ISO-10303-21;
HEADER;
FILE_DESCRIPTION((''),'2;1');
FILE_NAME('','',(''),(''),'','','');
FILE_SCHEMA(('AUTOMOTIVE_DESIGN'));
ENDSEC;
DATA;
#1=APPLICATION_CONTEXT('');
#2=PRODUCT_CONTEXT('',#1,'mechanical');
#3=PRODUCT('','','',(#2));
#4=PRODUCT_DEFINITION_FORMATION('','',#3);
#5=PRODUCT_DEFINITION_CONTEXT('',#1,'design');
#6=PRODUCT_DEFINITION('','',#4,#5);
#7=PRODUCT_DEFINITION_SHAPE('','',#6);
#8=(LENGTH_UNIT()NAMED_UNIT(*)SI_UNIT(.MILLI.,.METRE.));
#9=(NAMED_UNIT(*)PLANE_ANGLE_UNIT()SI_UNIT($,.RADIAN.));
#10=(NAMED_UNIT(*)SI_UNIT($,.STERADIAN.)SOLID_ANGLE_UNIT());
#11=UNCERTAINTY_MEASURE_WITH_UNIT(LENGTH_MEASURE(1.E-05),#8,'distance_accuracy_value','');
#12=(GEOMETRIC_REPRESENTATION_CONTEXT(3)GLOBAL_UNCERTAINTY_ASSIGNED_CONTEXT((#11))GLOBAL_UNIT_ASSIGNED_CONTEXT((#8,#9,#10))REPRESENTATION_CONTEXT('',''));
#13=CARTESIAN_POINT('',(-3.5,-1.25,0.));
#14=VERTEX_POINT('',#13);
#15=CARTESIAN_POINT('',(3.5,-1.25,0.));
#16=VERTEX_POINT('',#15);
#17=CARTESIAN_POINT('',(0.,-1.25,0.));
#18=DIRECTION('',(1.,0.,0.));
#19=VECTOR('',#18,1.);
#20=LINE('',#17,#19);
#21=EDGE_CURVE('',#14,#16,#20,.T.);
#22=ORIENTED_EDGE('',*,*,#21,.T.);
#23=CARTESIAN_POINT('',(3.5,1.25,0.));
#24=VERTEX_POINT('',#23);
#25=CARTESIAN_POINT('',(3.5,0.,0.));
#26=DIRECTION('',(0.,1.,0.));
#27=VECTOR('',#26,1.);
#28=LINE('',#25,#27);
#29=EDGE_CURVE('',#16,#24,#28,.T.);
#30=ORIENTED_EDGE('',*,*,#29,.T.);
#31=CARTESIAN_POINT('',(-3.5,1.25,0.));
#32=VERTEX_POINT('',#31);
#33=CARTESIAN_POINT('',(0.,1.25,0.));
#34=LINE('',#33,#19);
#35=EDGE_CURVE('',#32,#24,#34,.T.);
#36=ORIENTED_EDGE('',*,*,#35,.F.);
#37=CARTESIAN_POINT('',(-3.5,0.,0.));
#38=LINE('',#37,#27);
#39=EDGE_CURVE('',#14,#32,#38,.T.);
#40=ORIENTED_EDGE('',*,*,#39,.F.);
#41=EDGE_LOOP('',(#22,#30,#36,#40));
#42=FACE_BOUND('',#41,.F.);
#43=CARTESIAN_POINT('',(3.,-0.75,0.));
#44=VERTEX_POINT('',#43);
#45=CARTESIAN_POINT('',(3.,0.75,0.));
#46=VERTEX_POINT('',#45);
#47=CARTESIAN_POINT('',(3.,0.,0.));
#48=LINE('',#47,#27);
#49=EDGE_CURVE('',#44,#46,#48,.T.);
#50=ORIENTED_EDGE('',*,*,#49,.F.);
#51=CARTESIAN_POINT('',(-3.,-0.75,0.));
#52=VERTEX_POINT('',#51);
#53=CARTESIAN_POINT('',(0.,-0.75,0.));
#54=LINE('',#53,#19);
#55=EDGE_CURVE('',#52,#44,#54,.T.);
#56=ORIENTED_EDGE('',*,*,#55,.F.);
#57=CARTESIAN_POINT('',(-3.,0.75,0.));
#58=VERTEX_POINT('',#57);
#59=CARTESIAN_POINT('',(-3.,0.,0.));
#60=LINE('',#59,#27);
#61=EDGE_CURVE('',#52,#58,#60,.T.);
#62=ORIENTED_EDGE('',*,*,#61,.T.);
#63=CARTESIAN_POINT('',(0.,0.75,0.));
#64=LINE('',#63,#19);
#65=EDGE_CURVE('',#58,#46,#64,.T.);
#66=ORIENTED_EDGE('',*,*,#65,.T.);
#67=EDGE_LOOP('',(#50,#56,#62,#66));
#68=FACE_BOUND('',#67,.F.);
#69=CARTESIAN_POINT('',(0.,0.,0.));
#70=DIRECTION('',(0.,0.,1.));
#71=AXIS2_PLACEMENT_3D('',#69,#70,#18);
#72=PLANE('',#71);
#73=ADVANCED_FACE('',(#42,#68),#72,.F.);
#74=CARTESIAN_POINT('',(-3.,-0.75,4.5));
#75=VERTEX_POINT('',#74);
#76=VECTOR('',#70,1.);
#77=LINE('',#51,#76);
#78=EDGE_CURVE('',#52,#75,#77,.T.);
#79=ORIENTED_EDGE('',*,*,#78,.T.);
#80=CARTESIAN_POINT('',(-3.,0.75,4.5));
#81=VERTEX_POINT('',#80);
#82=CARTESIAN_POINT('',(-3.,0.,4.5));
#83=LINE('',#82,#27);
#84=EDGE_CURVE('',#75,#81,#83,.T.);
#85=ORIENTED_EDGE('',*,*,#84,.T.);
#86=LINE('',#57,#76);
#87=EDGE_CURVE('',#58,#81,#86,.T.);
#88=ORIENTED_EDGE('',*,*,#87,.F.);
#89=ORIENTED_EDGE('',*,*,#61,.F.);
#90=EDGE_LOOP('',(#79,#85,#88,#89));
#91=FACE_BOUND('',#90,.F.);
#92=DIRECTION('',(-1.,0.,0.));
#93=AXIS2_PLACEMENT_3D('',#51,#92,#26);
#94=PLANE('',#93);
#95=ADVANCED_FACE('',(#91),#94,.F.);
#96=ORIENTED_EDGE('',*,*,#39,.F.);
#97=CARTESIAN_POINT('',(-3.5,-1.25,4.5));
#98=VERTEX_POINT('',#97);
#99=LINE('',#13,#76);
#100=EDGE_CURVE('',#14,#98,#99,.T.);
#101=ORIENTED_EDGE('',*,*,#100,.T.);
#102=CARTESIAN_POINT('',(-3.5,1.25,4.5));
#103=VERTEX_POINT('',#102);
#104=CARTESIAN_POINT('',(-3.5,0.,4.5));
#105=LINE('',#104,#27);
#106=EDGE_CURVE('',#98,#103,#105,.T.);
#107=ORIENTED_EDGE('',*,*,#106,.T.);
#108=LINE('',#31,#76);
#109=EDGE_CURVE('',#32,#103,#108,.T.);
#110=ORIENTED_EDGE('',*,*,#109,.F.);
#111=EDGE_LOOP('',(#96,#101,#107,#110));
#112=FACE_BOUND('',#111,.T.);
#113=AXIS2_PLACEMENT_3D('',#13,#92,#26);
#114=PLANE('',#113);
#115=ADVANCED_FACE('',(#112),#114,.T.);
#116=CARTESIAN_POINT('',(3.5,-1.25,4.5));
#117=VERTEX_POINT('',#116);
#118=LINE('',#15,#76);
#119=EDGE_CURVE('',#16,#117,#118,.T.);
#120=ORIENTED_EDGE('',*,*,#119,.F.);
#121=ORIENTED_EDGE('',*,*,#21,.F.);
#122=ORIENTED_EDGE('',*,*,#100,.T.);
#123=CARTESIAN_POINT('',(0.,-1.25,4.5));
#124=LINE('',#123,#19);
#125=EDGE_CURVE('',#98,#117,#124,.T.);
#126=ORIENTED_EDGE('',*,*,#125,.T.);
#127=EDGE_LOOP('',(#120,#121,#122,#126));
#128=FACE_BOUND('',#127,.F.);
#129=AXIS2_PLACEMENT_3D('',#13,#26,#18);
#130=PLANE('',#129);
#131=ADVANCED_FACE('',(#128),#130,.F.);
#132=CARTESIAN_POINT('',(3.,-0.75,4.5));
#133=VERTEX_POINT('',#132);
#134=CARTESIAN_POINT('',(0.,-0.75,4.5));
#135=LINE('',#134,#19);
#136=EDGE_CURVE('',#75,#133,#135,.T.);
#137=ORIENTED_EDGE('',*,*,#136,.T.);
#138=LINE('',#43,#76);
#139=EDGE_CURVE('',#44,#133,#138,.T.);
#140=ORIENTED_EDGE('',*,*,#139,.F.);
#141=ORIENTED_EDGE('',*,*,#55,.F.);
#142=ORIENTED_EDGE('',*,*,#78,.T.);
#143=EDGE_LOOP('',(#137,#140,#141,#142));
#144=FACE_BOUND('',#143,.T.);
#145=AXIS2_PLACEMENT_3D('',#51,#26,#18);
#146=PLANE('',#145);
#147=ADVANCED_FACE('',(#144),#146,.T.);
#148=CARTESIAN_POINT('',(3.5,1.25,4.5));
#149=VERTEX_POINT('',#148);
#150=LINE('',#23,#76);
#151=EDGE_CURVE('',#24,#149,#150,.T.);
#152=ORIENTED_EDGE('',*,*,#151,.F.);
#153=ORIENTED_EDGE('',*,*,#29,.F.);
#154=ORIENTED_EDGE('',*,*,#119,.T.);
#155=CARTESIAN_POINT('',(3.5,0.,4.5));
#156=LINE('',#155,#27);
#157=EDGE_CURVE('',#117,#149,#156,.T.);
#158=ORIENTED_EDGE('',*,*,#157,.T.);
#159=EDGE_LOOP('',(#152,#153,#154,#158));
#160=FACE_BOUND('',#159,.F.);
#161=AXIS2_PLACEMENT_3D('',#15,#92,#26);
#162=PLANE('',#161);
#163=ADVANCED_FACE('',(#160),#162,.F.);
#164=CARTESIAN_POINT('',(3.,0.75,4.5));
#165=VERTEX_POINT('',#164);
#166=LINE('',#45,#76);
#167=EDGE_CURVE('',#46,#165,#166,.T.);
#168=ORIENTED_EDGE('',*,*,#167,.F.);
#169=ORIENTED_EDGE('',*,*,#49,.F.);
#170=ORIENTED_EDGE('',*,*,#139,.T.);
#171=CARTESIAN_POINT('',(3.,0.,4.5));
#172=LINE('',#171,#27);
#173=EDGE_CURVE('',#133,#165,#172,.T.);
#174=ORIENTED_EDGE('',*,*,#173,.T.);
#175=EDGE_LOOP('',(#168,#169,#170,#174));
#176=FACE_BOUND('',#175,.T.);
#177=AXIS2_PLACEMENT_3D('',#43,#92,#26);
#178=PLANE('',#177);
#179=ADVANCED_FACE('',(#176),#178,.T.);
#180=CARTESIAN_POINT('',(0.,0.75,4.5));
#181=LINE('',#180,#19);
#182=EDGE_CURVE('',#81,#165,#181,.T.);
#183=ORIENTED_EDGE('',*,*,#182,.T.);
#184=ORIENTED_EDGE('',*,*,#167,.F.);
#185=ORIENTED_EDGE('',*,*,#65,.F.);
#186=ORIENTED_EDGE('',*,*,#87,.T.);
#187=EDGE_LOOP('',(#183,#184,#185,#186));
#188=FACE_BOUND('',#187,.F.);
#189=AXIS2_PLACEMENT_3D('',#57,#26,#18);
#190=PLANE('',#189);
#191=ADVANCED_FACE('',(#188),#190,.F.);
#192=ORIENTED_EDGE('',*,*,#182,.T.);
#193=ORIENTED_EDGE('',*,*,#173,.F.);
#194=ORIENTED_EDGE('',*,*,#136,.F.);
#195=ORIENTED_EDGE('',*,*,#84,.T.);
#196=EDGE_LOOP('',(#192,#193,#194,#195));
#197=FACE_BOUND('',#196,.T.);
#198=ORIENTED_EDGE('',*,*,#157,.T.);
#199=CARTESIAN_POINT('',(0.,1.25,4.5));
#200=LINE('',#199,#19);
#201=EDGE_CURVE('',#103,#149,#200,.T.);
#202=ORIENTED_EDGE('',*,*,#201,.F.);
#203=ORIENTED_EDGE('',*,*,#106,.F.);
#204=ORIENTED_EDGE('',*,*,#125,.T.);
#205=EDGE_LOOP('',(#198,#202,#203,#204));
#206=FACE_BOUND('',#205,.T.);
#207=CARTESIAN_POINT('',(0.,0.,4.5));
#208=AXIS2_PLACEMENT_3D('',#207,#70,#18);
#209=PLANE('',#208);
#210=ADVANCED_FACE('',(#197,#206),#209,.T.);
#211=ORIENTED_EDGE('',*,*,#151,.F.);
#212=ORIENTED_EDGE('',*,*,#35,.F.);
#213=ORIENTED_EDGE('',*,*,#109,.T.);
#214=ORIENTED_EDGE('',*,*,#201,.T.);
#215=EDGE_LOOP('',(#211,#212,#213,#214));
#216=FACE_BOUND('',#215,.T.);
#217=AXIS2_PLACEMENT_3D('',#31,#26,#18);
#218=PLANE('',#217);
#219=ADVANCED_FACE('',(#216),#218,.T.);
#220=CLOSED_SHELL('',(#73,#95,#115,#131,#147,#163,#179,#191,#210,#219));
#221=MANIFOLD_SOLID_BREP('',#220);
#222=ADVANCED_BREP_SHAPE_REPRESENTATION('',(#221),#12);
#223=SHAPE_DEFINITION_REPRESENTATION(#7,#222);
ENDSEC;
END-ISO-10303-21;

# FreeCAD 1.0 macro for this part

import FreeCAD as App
import Part
import Sketcher
Q = App.Units.Quantity


def add_polygon(sketch, points):
    """Adds a closed chain of lines whose ends are joined by coincident constraints."""
    first, n = sketch.GeometryCount, len(points)
    for a, b in zip(points, points[1:] + points[:1]):
        sketch.addGeometry(Part.LineSegment(App.Vector(*a, 0), App.Vector(*b, 0)), False)
    for i in range(n):
        sketch.addConstraint(Sketcher.Constraint("Coincident", first + i, 2, first + (i + 1) % n, 1))

doc = App.newDocument("Part")
body = doc.addObject("PartDesign::Body", "Body")

# Sketch on XY plane
sketch1 = doc.addObject("Sketcher::SketchObject", "Sketch")
body.addObject(sketch1)
sketch1.AttachmentSupport = (doc.XY_Plane, [""])
sketch1.MapMode = "FlatFace"
add_polygon(sketch1, [(-3.5, 1.25), (-3.5, -1.25), (3.5, -1.25), (3.5, 1.25)])  # lines 0-3
add_polygon(sketch1, [(3, -0.75), (-3, -0.75), (-3, 0.75), (3, 0.75)])  # lines 4-7
sketch1.addConstraint([
    Sketcher.Constraint("Vertical", 0),
    Sketcher.Constraint("Horizontal", 1),
    Sketcher.Constraint("Vertical", 2),
    Sketcher.Constraint("Horizontal", 3),
    Sketcher.Constraint("Horizontal", 4),
    Sketcher.Constraint("Vertical", 5),
    Sketcher.Constraint("Horizontal", 6),
    Sketcher.Constraint("Vertical", 7),
    Sketcher.Constraint("Symmetric", 0, 2, 2, 2, -1, 1),
    Sketcher.Constraint("Symmetric", 4, 2, 6, 2, -1, 1),
    Sketcher.Constraint("DistanceX", 1, 1, 1, 2, Q("7 mm")),
    Sketcher.Constraint("DistanceX", 4, 2, 4, 1, Q("6 mm")),
    Sketcher.Constraint("DistanceY", 0, 2, 0, 1, Q("2.5 mm")),
    Sketcher.Constraint("DistanceY", 5, 1, 5, 2, Q("1.5 mm")),
])
pad1 = doc.addObject("PartDesign::Pad", "Pad")
body.addObject(pad1)
pad1.Profile = sketch1
pad1.Length = 4.5

doc.recompute()
